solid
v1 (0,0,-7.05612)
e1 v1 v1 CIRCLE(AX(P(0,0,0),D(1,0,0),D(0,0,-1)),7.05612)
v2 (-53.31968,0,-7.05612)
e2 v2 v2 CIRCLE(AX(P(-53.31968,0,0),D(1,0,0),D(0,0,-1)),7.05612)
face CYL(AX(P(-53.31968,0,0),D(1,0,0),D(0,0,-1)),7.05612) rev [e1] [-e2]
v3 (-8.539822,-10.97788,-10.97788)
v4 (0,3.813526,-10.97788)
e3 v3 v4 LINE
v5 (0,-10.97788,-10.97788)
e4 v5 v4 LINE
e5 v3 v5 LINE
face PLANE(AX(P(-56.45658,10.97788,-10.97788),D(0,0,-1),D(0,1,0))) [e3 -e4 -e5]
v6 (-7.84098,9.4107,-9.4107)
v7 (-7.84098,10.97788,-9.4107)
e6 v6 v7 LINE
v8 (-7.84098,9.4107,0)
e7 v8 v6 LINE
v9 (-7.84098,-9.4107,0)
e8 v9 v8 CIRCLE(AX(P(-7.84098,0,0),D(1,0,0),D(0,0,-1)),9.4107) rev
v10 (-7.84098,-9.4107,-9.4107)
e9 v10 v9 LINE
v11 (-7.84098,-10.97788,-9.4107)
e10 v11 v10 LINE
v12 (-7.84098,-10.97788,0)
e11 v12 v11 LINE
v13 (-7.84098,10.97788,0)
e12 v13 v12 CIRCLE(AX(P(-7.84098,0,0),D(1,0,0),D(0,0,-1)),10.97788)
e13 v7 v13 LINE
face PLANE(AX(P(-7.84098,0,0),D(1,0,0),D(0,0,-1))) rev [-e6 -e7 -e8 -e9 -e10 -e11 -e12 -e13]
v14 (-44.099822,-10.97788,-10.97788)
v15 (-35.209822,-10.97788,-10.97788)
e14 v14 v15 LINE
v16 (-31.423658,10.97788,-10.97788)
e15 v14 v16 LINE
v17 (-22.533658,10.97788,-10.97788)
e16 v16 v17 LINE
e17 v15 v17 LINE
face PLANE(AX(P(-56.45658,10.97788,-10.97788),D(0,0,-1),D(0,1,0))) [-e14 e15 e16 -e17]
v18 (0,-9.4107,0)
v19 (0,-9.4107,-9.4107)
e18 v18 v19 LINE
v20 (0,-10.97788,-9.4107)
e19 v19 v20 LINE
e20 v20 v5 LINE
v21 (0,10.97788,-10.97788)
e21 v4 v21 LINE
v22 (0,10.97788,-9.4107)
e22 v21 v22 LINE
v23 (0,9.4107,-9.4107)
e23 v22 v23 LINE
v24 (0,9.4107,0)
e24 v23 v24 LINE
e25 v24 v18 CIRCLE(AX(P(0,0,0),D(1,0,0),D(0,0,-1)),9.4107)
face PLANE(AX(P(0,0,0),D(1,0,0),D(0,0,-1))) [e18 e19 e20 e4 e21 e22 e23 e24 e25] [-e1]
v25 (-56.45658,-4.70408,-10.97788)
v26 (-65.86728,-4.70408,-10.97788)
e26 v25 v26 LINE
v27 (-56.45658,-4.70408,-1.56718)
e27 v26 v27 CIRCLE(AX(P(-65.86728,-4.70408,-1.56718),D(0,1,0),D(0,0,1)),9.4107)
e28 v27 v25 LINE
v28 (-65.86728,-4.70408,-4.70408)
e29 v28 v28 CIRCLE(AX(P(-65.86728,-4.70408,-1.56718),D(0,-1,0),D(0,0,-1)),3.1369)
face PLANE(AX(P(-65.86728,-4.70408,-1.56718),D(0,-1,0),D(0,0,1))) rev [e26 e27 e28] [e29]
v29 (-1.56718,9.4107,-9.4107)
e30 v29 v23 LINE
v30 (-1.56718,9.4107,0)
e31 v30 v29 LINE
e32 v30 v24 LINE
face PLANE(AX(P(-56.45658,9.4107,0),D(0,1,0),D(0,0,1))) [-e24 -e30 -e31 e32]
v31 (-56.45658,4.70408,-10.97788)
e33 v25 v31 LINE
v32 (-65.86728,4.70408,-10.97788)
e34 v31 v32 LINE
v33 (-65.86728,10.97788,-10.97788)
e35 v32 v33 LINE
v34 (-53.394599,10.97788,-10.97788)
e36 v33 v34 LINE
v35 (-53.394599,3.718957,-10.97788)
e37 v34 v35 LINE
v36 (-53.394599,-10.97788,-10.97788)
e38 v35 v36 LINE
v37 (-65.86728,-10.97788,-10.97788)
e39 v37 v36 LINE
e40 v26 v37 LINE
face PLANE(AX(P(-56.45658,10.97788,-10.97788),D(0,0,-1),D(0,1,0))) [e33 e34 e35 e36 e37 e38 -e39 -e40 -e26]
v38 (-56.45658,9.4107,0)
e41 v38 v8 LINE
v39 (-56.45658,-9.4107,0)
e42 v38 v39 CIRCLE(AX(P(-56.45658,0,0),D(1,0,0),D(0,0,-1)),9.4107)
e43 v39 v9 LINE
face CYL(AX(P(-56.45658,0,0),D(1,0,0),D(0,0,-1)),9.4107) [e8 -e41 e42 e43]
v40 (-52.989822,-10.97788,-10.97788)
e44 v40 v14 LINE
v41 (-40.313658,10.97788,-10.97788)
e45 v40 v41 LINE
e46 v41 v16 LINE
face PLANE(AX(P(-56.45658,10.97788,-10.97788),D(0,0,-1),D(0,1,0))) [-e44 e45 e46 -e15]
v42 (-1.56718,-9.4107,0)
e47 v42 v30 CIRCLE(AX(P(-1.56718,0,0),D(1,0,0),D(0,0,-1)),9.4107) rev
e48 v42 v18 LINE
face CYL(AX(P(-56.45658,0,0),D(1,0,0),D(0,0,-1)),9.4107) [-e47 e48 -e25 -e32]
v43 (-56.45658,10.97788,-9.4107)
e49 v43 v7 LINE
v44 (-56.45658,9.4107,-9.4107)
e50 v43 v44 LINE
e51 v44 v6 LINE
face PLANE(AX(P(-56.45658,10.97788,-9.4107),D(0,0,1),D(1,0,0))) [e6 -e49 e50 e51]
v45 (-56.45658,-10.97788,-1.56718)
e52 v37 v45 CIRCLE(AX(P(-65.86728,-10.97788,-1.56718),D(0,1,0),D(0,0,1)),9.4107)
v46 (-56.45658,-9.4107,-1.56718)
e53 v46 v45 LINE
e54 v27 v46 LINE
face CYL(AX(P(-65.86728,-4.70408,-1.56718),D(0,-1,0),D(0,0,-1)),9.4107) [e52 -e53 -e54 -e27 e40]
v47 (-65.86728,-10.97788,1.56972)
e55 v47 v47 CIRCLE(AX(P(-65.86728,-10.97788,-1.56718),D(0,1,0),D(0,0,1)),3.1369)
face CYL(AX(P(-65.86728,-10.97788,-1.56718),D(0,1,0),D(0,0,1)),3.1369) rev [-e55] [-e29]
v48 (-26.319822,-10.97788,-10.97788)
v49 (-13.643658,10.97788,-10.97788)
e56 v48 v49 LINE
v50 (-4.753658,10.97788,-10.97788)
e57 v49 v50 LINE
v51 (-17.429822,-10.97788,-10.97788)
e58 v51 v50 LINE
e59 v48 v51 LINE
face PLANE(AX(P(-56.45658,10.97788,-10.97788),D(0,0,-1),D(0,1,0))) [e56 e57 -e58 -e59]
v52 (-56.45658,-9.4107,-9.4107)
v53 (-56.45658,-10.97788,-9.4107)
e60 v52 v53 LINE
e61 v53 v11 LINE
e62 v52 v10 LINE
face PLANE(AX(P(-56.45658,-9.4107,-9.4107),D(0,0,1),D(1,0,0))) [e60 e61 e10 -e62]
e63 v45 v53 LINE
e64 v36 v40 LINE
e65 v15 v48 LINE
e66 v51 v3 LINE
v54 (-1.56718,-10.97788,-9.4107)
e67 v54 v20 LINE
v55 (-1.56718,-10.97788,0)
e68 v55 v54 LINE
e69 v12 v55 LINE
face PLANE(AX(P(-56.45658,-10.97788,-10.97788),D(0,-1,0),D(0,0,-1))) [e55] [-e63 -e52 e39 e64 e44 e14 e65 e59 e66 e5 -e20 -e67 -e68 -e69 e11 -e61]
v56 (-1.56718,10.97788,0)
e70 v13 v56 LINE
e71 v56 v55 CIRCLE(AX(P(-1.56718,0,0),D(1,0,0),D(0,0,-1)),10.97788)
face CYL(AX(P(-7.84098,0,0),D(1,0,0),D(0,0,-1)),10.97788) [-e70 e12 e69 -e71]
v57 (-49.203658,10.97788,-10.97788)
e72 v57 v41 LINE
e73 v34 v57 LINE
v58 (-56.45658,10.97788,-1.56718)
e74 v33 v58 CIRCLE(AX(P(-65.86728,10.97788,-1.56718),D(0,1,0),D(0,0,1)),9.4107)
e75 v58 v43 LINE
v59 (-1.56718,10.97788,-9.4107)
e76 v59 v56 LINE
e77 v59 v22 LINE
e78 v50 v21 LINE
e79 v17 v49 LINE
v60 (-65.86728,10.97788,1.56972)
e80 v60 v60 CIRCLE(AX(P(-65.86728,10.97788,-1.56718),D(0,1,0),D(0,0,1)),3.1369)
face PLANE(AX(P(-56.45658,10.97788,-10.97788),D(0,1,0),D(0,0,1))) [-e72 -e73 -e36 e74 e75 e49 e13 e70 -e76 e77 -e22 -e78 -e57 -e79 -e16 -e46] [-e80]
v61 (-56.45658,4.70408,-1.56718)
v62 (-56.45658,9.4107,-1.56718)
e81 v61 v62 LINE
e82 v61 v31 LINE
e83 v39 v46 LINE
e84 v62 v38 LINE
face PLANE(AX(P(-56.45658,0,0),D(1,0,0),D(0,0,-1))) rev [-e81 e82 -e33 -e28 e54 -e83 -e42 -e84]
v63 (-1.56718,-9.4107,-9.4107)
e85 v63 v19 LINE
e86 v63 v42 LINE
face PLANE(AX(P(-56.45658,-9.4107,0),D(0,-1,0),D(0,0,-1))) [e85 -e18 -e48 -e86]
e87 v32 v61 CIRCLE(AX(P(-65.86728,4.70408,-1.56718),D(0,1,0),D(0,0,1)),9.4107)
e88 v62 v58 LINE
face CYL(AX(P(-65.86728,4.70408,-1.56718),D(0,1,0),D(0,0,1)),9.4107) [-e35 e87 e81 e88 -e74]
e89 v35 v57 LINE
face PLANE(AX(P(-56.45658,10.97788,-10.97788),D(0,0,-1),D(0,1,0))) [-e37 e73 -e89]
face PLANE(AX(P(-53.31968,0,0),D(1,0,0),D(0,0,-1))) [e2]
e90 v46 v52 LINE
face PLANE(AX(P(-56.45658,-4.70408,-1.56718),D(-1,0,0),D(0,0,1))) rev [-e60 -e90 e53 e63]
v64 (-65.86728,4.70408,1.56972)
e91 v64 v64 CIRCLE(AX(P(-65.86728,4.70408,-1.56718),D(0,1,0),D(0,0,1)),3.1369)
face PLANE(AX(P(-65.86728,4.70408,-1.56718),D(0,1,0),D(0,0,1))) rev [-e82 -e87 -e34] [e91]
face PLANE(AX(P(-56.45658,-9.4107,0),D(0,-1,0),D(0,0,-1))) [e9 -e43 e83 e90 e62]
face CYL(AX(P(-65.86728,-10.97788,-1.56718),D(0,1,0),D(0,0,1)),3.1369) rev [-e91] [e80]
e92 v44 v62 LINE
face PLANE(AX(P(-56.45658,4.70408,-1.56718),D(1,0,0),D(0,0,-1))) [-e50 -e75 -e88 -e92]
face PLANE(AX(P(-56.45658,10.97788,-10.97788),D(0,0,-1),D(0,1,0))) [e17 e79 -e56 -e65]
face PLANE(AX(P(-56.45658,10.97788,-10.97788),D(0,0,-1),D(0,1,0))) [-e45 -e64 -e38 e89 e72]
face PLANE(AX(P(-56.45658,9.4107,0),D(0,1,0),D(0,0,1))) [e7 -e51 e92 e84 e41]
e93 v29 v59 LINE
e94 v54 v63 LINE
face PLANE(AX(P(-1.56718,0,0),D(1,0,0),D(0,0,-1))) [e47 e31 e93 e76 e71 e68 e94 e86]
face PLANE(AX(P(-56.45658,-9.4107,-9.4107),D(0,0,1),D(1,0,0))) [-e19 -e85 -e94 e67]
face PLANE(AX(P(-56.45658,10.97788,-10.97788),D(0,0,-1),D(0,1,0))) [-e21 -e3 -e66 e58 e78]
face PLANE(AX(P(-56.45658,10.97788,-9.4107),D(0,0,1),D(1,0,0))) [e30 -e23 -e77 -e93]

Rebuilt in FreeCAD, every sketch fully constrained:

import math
import FreeCAD as App
import Part
import Sketcher
from FreeCAD import Vector
Q = App.Units.Quantity

doc = App.newDocument("Part")
body = doc.addObject("PartDesign::Body", "Body")

sketch1 = doc.addObject("Sketcher::SketchObject", "Sketch")
body.addObject(sketch1)
sketch1.AttachmentSupport = (doc.YZ_Plane, [""])
sketch1.MapMode = "FlatFace"
sketch1.addGeometry([
    Part.LineSegment(Vector(-10.97788, -10.97788, 0), Vector(10.97788, -10.97788, 0)),
    Part.LineSegment(Vector(10.97788, -10.97788, 0), Vector(10.97788, -9.4107, 0)),
    Part.LineSegment(Vector(10.97788, -9.4107, 0), Vector(9.4107, -9.4107, 0)),
    Part.LineSegment(Vector(9.4107, -9.4107, 0), Vector(9.4107, 0, 0)),
    Part.ArcOfCircle(Part.Circle(Vector(0, 0, 0), Vector(0, 0, 1), 9.4107), math.radians(0), math.radians(180)),
    Part.LineSegment(Vector(-9.4107, 0, 0), Vector(-9.4107, -9.4107, 0)),
    Part.LineSegment(Vector(-9.4107, -9.4107, 0), Vector(-10.97788, -9.4107, 0)),
    Part.LineSegment(Vector(-10.97788, -9.4107, 0), Vector(-10.97788, -10.97788, 0)),
], False)
sketch1.addConstraint([
    Sketcher.Constraint("Coincident", 0, 2, 1, 1),
    Sketcher.Constraint("Coincident", 1, 2, 2, 1),
    Sketcher.Constraint("Coincident", 2, 2, 3, 1),
    Sketcher.Constraint("Tangent", 3, 2, 4, 1),
    Sketcher.Constraint("Tangent", 4, 2, 5, 1),
    Sketcher.Constraint("Coincident", 5, 2, 6, 1),
    Sketcher.Constraint("Coincident", 6, 2, 7, 1),
    Sketcher.Constraint("Coincident", 7, 2, 0, 1),
    Sketcher.Constraint("Horizontal", 0),
    Sketcher.Constraint("Vertical", 1),
    Sketcher.Constraint("Horizontal", 2),
    Sketcher.Constraint("Vertical", 3),
    Sketcher.Constraint("Vertical", 5),
    Sketcher.Constraint("Horizontal", 6),
    Sketcher.Constraint("Vertical", 7),
    Sketcher.Constraint("Coincident", 4, 3, -1, 1),
    Sketcher.Constraint("Symmetric", 1, 2, 6, 2, -2),
    Sketcher.Constraint("Equal", 6, 1),
    Sketcher.Constraint("Radius", 4, Q("0.3705 in")),
    Sketcher.Constraint("DistanceX", 0, 1, 0, 2, Q("0.8644 in")),
    Sketcher.Constraint("DistanceY", 3, 1, 3, 2, Q("0.3705 in")),
])
pad1 = doc.addObject("PartDesign::Pad", "Pad")
body.addObject(pad1)
pad1.Profile = sketch1
pad1.Length = Q("2.2227 in")
pad1.Reversed = True

sketch2 = doc.addObject("Sketcher::SketchObject", "Sketch001")
body.addObject(sketch2)
sketch2.AttachmentSupport = (doc.YZ_Plane, [""])
sketch2.MapMode = "FlatFace"
sketch2.AttachmentOffset = App.Placement(Vector(0, 0, -0.0617 * 25.4), App.Rotation())
sketch2.addGeometry([
    Part.LineSegment(Vector(10.97788, -9.4107, 0), Vector(10.97788, 0, 0)),
    Part.ArcOfCircle(Part.Circle(Vector(0, 0, 0), Vector(0, 0, 1), 10.97788), math.radians(0), math.radians(180)),
    Part.LineSegment(Vector(-10.97788, 0, 0), Vector(-10.97788, -9.4107, 0)),
    Part.LineSegment(Vector(-10.97788, -9.4107, 0), Vector(10.97788, -9.4107, 0)),
], False)
sketch2.addConstraint([
    Sketcher.Constraint("Tangent", 0, 2, 1, 1),
    Sketcher.Constraint("Tangent", 1, 2, 2, 1),
    Sketcher.Constraint("Coincident", 2, 2, 3, 1),
    Sketcher.Constraint("Coincident", 3, 2, 0, 1),
    Sketcher.Constraint("Vertical", 0),
    Sketcher.Constraint("Vertical", 2),
    Sketcher.Constraint("Horizontal", 3),
    Sketcher.Constraint("Coincident", 1, 3, -1, 1),
    Sketcher.Constraint("Radius", 1, Q("0.4322 in")),
    Sketcher.Constraint("DistanceY", 0, 1, 0, 2, Q("0.3705 in")),
])
pad2 = doc.addObject("PartDesign::Pad", "Pad001")
body.addObject(pad2)
pad2.Profile = sketch2
pad2.Length = Q("0.247 in")
pad2.Reversed = True

sketch3 = doc.addObject("Sketcher::SketchObject", "Sketch002")
body.addObject(sketch3)
sketch3.AttachmentSupport = (doc.XZ_Plane, [""])
sketch3.MapMode = "FlatFace"
sketch3.AttachmentOffset = App.Placement(Vector(0, 0, -0.4322 * 25.4), App.Rotation())
sketch3.addGeometry([
    Part.LineSegment(Vector(-56.45658, -10.97788, 0), Vector(-65.86728, -10.97788, 0)),
    Part.ArcOfCircle(Part.Circle(Vector(-65.86728, -1.56718, 0), Vector(0, 0, 1), 9.4107), math.radians(0), math.radians(270)),
    Part.LineSegment(Vector(-56.45658, -1.56718, 0), Vector(-56.45658, -10.97788, 0)),
], False)
sketch3.addConstraint([
    Sketcher.Constraint("Tangent", 0, 2, 1, 2),
    Sketcher.Constraint("Tangent", 1, 1, 2, 1),
    Sketcher.Constraint("Coincident", 2, 2, 0, 1),
    Sketcher.Constraint("Horizontal", 0),
    Sketcher.Constraint("Vertical", 2),
    Sketcher.Constraint("Radius", 1, Q("0.3705 in")),
    Sketcher.Constraint("DistanceX", 1, 3, -1, 1, Q("2.5932 in")),
    Sketcher.Constraint("DistanceY", 1, 3, -1, 1, Q("0.0617 in")),
])
pad3 = doc.addObject("PartDesign::Pad", "Pad002")
body.addObject(pad3)
pad3.Profile = sketch3
pad3.Length = Q("0.247 in")
doc.recompute()

mirrored = doc.addObject("PartDesign::Mirrored", "Mirrored")
body.addObject(mirrored)
mirrored.Originals = [pad3]
mirrored.MirrorPlane = (doc.XZ_Plane, [""])
body.Tip = mirrored

sketch4 = doc.addObject("Sketcher::SketchObject", "Sketch003")
body.addObject(sketch4)
sketch4.AttachmentSupport = (doc.XZ_Plane, [""])
sketch4.MapMode = "FlatFace"
sketch4.AttachmentOffset = App.Placement(Vector(0, 0, -0.4322 * 25.4), App.Rotation())
sketch4.addGeometry(Part.Circle(Vector(-65.86728, -1.56718, 0), Vector(0, 0, 1), 3.1369), False)
sketch4.addConstraint([
    Sketcher.Constraint("Diameter", 0, Q("0.247 in")),
    Sketcher.Constraint("DistanceX", 0, 3, -1, 1, Q("2.5932 in")),
    Sketcher.Constraint("DistanceY", 0, 3, -1, 1, Q("0.0617 in")),
])
pocket1 = doc.addObject("PartDesign::Pocket", "Pocket")
body.addObject(pocket1)
pocket1.Profile = sketch4
pocket1.Type = "ThroughAll"
pocket1.Reversed = True

sketch5 = doc.addObject("Sketcher::SketchObject", "Sketch004")
body.addObject(sketch5)
sketch5.AttachmentSupport = (doc.YZ_Plane, [""])
sketch5.MapMode = "FlatFace"
sketch5.addGeometry(Part.Circle(Vector(0, 0, 0), Vector(0, 0, 1), 7.05612), False)
sketch5.addConstraint([
    Sketcher.Constraint("Coincident", 0, 3, -1, 1),
    Sketcher.Constraint("Diameter", 0, Q("0.5556 in")),
])
pocket2 = doc.addObject("PartDesign::Pocket", "Pocket001")
body.addObject(pocket2)
pocket2.Profile = sketch5
pocket2.Length = Q("2.0992 in")

doc.recompute()
